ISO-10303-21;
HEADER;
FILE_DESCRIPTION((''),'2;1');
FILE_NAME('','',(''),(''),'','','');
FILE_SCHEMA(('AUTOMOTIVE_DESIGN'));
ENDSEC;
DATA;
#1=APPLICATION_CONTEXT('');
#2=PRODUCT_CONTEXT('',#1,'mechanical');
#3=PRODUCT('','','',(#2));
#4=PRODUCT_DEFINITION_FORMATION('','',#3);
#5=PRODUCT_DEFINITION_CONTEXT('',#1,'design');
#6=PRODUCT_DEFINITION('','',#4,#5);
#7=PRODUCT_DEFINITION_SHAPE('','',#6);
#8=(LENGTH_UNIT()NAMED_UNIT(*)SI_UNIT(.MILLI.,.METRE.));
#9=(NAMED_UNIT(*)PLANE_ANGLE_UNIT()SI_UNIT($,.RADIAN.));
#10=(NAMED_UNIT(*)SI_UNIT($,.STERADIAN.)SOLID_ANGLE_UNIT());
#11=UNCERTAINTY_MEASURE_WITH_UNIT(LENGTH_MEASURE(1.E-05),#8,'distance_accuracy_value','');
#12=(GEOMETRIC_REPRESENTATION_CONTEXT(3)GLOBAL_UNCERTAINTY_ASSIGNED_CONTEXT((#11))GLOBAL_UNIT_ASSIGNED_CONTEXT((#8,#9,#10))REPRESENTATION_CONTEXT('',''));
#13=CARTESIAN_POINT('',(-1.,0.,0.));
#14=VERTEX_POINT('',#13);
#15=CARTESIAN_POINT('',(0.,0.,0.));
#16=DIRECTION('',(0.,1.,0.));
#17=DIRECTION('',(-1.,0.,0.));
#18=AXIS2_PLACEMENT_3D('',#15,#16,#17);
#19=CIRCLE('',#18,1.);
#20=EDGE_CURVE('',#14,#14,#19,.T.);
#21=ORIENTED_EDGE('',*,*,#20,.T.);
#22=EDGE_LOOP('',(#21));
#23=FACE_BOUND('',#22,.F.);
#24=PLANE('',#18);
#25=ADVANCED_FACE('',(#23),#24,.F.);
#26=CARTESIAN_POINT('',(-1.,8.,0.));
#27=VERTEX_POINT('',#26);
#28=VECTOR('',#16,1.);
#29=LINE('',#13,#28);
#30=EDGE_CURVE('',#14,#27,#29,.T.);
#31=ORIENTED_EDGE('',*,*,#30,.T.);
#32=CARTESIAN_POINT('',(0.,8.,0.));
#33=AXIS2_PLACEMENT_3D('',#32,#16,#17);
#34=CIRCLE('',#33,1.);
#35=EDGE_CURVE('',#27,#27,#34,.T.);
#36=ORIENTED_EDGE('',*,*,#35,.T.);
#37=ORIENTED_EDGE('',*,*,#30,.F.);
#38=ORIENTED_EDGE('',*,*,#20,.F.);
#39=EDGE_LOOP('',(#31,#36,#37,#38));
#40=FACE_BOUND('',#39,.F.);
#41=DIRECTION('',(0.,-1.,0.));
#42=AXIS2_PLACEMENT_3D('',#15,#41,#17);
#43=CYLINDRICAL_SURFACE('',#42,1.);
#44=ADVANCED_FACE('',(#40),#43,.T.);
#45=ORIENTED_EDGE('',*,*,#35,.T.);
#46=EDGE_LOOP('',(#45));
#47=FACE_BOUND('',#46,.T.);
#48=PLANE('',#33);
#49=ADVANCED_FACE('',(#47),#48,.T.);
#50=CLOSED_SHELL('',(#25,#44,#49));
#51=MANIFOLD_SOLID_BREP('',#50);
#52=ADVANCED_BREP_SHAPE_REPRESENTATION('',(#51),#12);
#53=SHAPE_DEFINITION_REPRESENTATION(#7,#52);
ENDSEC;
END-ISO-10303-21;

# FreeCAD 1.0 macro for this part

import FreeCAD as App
import Part
import Sketcher
from FreeCAD import Vector

doc = App.newDocument("Part")
body = doc.addObject("PartDesign::Body", "Body")

sketch1 = body.newObject("Sketcher::SketchObject", "Sketch")
sketch1.AttachmentSupport = (doc.getObject("XZ_Plane"), [""])
sketch1.MapMode = "FlatFace"
sketch1.addGeometry(Part.Circle(Vector(0, 0, 0), Vector(0, 0, 1), 1), False)
sketch1.addConstraint([
    Sketcher.Constraint("Coincident", 0, 3, -1, 1),
    Sketcher.Constraint("Diameter", 0, 2.0),
])
pad1 = body.newObject("PartDesign::Pad", "Pad")
pad1.Profile = sketch1
pad1.Length = 8
pad1.Reversed = True

doc.recompute()
